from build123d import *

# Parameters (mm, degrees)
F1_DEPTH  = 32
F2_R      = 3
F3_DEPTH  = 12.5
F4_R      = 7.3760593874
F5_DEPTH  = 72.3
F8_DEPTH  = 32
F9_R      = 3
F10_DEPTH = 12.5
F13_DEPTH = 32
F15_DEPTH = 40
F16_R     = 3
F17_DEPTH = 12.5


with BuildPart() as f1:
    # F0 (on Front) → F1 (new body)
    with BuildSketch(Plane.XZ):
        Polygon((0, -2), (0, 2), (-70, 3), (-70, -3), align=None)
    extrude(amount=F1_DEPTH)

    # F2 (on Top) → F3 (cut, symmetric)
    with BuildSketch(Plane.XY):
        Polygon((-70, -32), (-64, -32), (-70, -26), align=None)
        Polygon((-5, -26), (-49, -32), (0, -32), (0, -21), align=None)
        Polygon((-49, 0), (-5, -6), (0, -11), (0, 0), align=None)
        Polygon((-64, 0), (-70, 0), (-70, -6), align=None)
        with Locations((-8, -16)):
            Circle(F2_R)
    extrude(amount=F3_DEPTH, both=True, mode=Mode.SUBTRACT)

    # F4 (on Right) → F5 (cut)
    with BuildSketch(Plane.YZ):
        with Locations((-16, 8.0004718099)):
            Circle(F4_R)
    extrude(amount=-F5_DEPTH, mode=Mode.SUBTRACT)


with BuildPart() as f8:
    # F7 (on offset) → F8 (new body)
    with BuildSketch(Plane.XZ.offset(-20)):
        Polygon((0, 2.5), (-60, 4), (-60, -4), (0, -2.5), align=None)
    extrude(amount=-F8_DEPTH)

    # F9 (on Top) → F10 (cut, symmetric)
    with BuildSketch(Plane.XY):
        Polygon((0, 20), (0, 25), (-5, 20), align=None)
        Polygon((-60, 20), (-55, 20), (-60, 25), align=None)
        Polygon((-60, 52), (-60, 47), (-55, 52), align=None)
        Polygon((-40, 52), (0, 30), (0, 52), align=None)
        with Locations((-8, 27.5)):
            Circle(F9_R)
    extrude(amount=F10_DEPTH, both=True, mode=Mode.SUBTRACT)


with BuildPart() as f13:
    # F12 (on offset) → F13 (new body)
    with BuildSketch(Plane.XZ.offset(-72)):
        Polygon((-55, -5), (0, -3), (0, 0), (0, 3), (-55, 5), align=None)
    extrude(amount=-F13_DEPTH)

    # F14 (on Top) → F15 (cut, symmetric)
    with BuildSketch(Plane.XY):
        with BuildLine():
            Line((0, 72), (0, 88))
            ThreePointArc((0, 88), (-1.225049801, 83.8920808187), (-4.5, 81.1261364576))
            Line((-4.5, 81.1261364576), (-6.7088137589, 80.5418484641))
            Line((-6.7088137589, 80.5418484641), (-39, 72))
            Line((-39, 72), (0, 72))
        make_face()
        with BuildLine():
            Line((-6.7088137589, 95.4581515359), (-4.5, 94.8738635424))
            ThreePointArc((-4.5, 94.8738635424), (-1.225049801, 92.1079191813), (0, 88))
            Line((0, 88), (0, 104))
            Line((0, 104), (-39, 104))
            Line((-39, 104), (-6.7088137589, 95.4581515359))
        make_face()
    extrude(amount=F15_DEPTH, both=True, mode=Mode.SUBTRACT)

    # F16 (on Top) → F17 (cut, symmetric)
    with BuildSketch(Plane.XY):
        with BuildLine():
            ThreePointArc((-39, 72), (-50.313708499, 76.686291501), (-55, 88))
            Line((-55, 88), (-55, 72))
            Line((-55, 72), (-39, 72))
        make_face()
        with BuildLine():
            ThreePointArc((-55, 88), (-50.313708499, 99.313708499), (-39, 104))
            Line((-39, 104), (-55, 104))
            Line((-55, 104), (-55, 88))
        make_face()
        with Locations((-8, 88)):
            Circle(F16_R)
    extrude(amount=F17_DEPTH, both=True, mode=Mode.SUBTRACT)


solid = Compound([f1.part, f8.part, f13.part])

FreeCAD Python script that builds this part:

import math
import FreeCAD as App
import Part
import Sketcher

V = App.Vector

doc = App.newDocument("Part")
body = doc.addObject("PartDesign::Body", "Body")

# Sketch on XZ plane
sketch1 = doc.addObject("Sketcher::SketchObject", "Sketch")
body.addObject(sketch1)
sketch1.AttachmentSupport = (doc.XZ_Plane, [""])
sketch1.MapMode = "FlatFace"
sketch1.addGeometry([
    Part.LineSegment(V(0, -2, 0), V(0, 2, 0)),
    Part.LineSegment(V(0, 2, 0), V(-70, 3, 0)),
    Part.LineSegment(V(-70, 3, 0), V(-70, -3, 0)),
    Part.LineSegment(V(-70, -3, 0), V(0, -2, 0)),
], False)
sketch1.addConstraint([
    Sketcher.Constraint("Coincident", 0, 2, 1, 1),
    Sketcher.Constraint("Coincident", 1, 2, 2, 1),
    Sketcher.Constraint("Coincident", 2, 2, 3, 1),
    Sketcher.Constraint("Coincident", 3, 2, 0, 1),
    Sketcher.Constraint("Vertical", 0),
    Sketcher.Constraint("Vertical", 2),
    Sketcher.Constraint("Symmetric", 0, 2, 3, 2, -1, 1),
    Sketcher.Constraint("Equal", 1, 3),
    Sketcher.Constraint("DistanceY", 0, 1, 0, 2, 4.0),
    Sketcher.Constraint("DistanceY", 2, 2, 2, 1, 6.0),
    Sketcher.Constraint("DistanceX", 1, 2, -1, 1, 70.0),
])
pad1 = doc.addObject("PartDesign::Pad", "Pad")
body.addObject(pad1)
pad1.Profile = sketch1
pad1.Length = 32

# Sketch on XY plane
sketch2 = doc.addObject("Sketcher::SketchObject", "Sketch001")
body.addObject(sketch2)
sketch2.AttachmentSupport = (doc.XY_Plane, [""])
sketch2.MapMode = "FlatFace"
sketch2.addGeometry([
    Part.LineSegment(V(-70, -32, 0), V(-64, -32, 0)),  # 0
    Part.LineSegment(V(-64, -32, 0), V(-70, -26, 0)),  # 1
    Part.LineSegment(V(-70, -26, 0), V(-70, -32, 0)),  # 2
    Part.LineSegment(V(-5, -26, 0), V(-49, -32, 0)),  # 3
    Part.LineSegment(V(-49, -32, 0), V(0, -32, 0)),  # 4
    Part.LineSegment(V(0, -32, 0), V(0, -21, 0)),  # 5
    Part.LineSegment(V(0, -21, 0), V(-5, -26, 0)),  # 6
    Part.LineSegment(V(-49, 0, 0), V(-5, -6, 0)),  # 7
    Part.LineSegment(V(-5, -6, 0), V(0, -11, 0)),  # 8
    Part.LineSegment(V(0, -11, 0), V(0, 0, 0)),  # 9
    Part.LineSegment(V(0, 0, 0), V(-49, 0, 0)),  # 10
    Part.LineSegment(V(-64, 0, 0), V(-70, 0, 0)),  # 11
    Part.LineSegment(V(-70, 0, 0), V(-70, -6, 0)),  # 12
    Part.LineSegment(V(-70, -6, 0), V(-64, 0, 0)),  # 13
    Part.Circle(V(-8, -16, 0), V(0, 0, 1), 3),  # 14
], False)
sketch2.addConstraint([
    Sketcher.Constraint("Coincident", 0, 2, 1, 1),
    Sketcher.Constraint("Coincident", 1, 2, 2, 1),
    Sketcher.Constraint("Coincident", 2, 2, 0, 1),
    Sketcher.Constraint("Coincident", 3, 2, 4, 1),
    Sketcher.Constraint("Coincident", 4, 2, 5, 1),
    Sketcher.Constraint("Coincident", 5, 2, 6, 1),
    Sketcher.Constraint("Coincident", 6, 2, 3, 1),
    Sketcher.Constraint("Coincident", 7, 2, 8, 1),
    Sketcher.Constraint("Coincident", 8, 2, 9, 1),
    Sketcher.Constraint("Coincident", 9, 2, 10, 1),
    Sketcher.Constraint("Coincident", 10, 2, 7, 1),
    Sketcher.Constraint("Coincident", 11, 2, 12, 1),
    Sketcher.Constraint("Coincident", 12, 2, 13, 1),
    Sketcher.Constraint("Coincident", 13, 2, 11, 1),
    Sketcher.Constraint("Horizontal", 0),
    Sketcher.Constraint("Vertical", 2),
    Sketcher.Constraint("Horizontal", 4),
    Sketcher.Constraint("Vertical", 5),
    Sketcher.Constraint("Vertical", 9),
    Sketcher.Constraint("Horizontal", 10),
    Sketcher.Constraint("Horizontal", 11),
    Sketcher.Constraint("Vertical", 12),
    Sketcher.Constraint("Coincident", 9, 2, -1, 1),
    Sketcher.Constraint("PointOnObject", 4, 2, -2),
    Sketcher.Constraint("PointOnObject", 11, 2, -1),
    Sketcher.Constraint("Perpendicular", 1, 6),
    Sketcher.Constraint("Perpendicular", 6, 8),
    Sketcher.Constraint("Perpendicular", 8, 13),
    Sketcher.Constraint("Horizontal", 2, 2, 3, 2),
    Sketcher.Constraint("Horizontal", 1, 2, 6, 2),
    Sketcher.Constraint("Horizontal", 7, 2, 12, 2),
    Sketcher.Constraint("Vertical", 6, 2, 7, 2),
    Sketcher.Constraint("Vertical", 3, 2, 10, 2),
    Sketcher.Constraint("Vertical", 2, 2, 11, 2),
    Sketcher.Constraint("Vertical", 0, 2, 13, 2),
    Sketcher.Constraint("Equal", 11, 2),
    Sketcher.Constraint("Diameter", 14, 6.0),
    Sketcher.Constraint("DistanceX", 0, 1, 0, 2, 6.0),
    Sketcher.Constraint("DistanceX", 4, 1, 4, 2, 49.0),
    Sketcher.Constraint("DistanceY", 5, 1, 5, 2, 11.0),
    Sketcher.Constraint("DistanceX", 14, 3, -1, 1, 8.0),
    Sketcher.Constraint("DistanceY", 14, 3, -1, 1, 16.0),
    Sketcher.Constraint("DistanceX", 0, 2, -1, 1, 64.0),
    Sketcher.Constraint("DistanceY", 0, 2, -1, 1, 32.0),
])
pocket1 = doc.addObject("PartDesign::Pocket", "Pocket")
body.addObject(pocket1)
pocket1.Profile = sketch2
pocket1.Length = 25
pocket1.Midplane = True

# Sketch on YZ plane
sketch3 = doc.addObject("Sketcher::SketchObject", "Sketch002")
body.addObject(sketch3)
sketch3.AttachmentSupport = (doc.YZ_Plane, [""])
sketch3.MapMode = "FlatFace"
sketch3.addGeometry(Part.Circle(V(-16, 8.000472, 0), V(0, 0, 1), 7.376059), False)
sketch3.addConstraint([
    Sketcher.Constraint("DistanceX", 0, 3, -1, 1, 16.0),
    Sketcher.Constraint("Diameter", 0, 14.752119),
    Sketcher.Constraint("DistanceY", -1, 1, 0, 3, 8.000472),
])
pocket2 = doc.addObject("PartDesign::Pocket", "Pocket001")
body.addObject(pocket2)
pocket2.Profile = sketch3
pocket2.Length = 72.3
body2 = doc.addObject("PartDesign::Body", "Body001")

# Sketch on XZ plane
sketch4 = doc.addObject("Sketcher::SketchObject", "Sketch003")
body2.addObject(sketch4)
sketch4.AttachmentSupport = (doc.getObject("XZ_Plane001"), [""])
sketch4.MapMode = "FlatFace"
sketch4.AttachmentOffset = App.Placement(V(0, 0, -20), App.Rotation())
sketch4.addGeometry([
    Part.LineSegment(V(0, 2.5, 0), V(-60, 4, 0)),
    Part.LineSegment(V(-60, 4, 0), V(-60, -4, 0)),
    Part.LineSegment(V(-60, -4, 0), V(0, -2.5, 0)),
    Part.LineSegment(V(0, -2.5, 0), V(0, 2.5, 0)),
], False)
sketch4.addConstraint([
    Sketcher.Constraint("Coincident", 0, 2, 1, 1),
    Sketcher.Constraint("Coincident", 1, 2, 2, 1),
    Sketcher.Constraint("Coincident", 2, 2, 3, 1),
    Sketcher.Constraint("Coincident", 3, 2, 0, 1),
    Sketcher.Constraint("Vertical", 1),
    Sketcher.Constraint("Vertical", 3),
    Sketcher.Constraint("Symmetric", 2, 2, 3, 2, -1, 1),
    Sketcher.Constraint("Equal", 0, 2),
    Sketcher.Constraint("DistanceY", 1, 2, 1, 1, 8.0),
    Sketcher.Constraint("DistanceY", 3, 1, 3, 2, 5.0),
    Sketcher.Constraint("DistanceX", 0, 2, -1, 1, 60.0),
])
pad2 = doc.addObject("PartDesign::Pad", "Pad001")
body2.addObject(pad2)
pad2.Profile = sketch4
pad2.Length = 32
pad2.Reversed = True

# Sketch on XY plane
sketch5 = doc.addObject("Sketcher::SketchObject", "Sketch004")
body2.addObject(sketch5)
sketch5.AttachmentSupport = (doc.getObject("XY_Plane001"), [""])
sketch5.MapMode = "FlatFace"
sketch5.addGeometry([
    Part.LineSegment(V(0, 20, 0), V(0, 25, 0)),  # 0
    Part.LineSegment(V(0, 25, 0), V(-5, 20, 0)),  # 1
    Part.LineSegment(V(-5, 20, 0), V(0, 20, 0)),  # 2
    Part.LineSegment(V(-60, 20, 0), V(-55, 20, 0)),  # 3
    Part.LineSegment(V(-55, 20, 0), V(-60, 25, 0)),  # 4
    Part.LineSegment(V(-60, 25, 0), V(-60, 20, 0)),  # 5
    Part.LineSegment(V(-60, 52, 0), V(-60, 47, 0)),  # 6
    Part.LineSegment(V(-60, 47, 0), V(-55, 52, 0)),  # 7
    Part.LineSegment(V(-55, 52, 0), V(-60, 52, 0)),  # 8
    Part.LineSegment(V(-40, 52, 0), V(0, 30, 0)),  # 9
    Part.LineSegment(V(0, 30, 0), V(0, 52, 0)),  # 10
    Part.LineSegment(V(0, 52, 0), V(-40, 52, 0)),  # 11
    Part.Circle(V(-8, 27.5, 0), V(0, 0, 1), 3),  # 12
], False)
sketch5.addConstraint([
    Sketcher.Constraint("Coincident", 0, 2, 1, 1),
    Sketcher.Constraint("Coincident", 1, 2, 2, 1),
    Sketcher.Constraint("Coincident", 2, 2, 0, 1),
    Sketcher.Constraint("Coincident", 3, 2, 4, 1),
    Sketcher.Constraint("Coincident", 4, 2, 5, 1),
    Sketcher.Constraint("Coincident", 5, 2, 3, 1),
    Sketcher.Constraint("Coincident", 6, 2, 7, 1),
    Sketcher.Constraint("Coincident", 7, 2, 8, 1),
    Sketcher.Constraint("Coincident", 8, 2, 6, 1),
    Sketcher.Constraint("Coincident", 9, 2, 10, 1),
    Sketcher.Constraint("Coincident", 10, 2, 11, 1),
    Sketcher.Constraint("Coincident", 11, 2, 9, 1),
    Sketcher.Constraint("Vertical", 0),
    Sketcher.Constraint("Horizontal", 2),
    Sketcher.Constraint("Horizontal", 3),
    Sketcher.Constraint("Vertical", 5),
    Sketcher.Constraint("Vertical", 6),
    Sketcher.Constraint("Horizontal", 8),
    Sketcher.Constraint("Vertical", 10),
    Sketcher.Constraint("Horizontal", 11),
    Sketcher.Constraint("PointOnObject", 0, 2, -2),
    Sketcher.Constraint("PointOnObject", 9, 2, -2),
    Sketcher.Constraint("Perpendicular", 1, 4),
    Sketcher.Constraint("Perpendicular", 4, 7),
    Sketcher.Constraint("Horizontal", 2, 2, 3, 2),
    Sketcher.Constraint("Horizontal", 0, 2, 4, 2),
    Sketcher.Constraint("Horizontal", 8, 2, 10, 2),
    Sketcher.Constraint("Vertical", 5, 2, 6, 2),
    Sketcher.Constraint("Vertical", 3, 2, 7, 2),
    Sketcher.Constraint("Equal", 2, 3),
    Sketcher.Constraint("Diameter", 12, 6.0),
    Sketcher.Constraint("DistanceX", 2, 1, 2, 2, 5.0),
    Sketcher.Constraint("DistanceX", 11, 2, 11, 1, 40.0),
    Sketcher.Constraint("DistanceY", 10, 1, 10, 2, 22.0),
    Sketcher.Constraint("DistanceX", 12, 3, -1, 1, 8.0),
    Sketcher.Constraint("DistanceY", -1, 1, 0, 2, 25.0),
    Sketcher.Constraint("DistanceX", 3, 2, -1, 1, 55.0),
    Sketcher.Constraint("DistanceY", -1, 1, 6, 2, 47.0),
    Sketcher.Constraint("DistanceY", -1, 1, 12, 3, 27.5),
])
pocket3 = doc.addObject("PartDesign::Pocket", "Pocket002")
body2.addObject(pocket3)
pocket3.Profile = sketch5
pocket3.Length = 25
pocket3.Midplane = True
body3 = doc.addObject("PartDesign::Body", "Body002")

# Sketch on XZ plane
sketch6 = doc.addObject("Sketcher::SketchObject", "Sketch005")
body3.addObject(sketch6)
sketch6.AttachmentSupport = (doc.getObject("XZ_Plane002"), [""])
sketch6.MapMode = "FlatFace"
sketch6.AttachmentOffset = App.Placement(V(0, 0, -72), App.Rotation())
sketch6.addGeometry([
    Part.LineSegment(V(-55, -5, 0), V(0, -3, 0)),
    Part.LineSegment(V(0, -3, 0), V(0, 3, 0)),
    Part.LineSegment(V(0, 3, 0), V(-55, 5, 0)),
    Part.LineSegment(V(-55, 5, 0), V(-55, -5, 0)),
], False)
sketch6.addConstraint([
    Sketcher.Constraint("Coincident", 0, 2, 1, 1),
    Sketcher.Constraint("Coincident", 1, 2, 2, 1),
    Sketcher.Constraint("Coincident", 2, 2, 3, 1),
    Sketcher.Constraint("Coincident", 3, 2, 0, 1),
    Sketcher.Constraint("Vertical", 1),
    Sketcher.Constraint("Vertical", 3),
    Sketcher.Constraint("Symmetric", 0, 2, 1, 2, -1, 1),
    Sketcher.Constraint("Equal", 0, 2),
    Sketcher.Constraint("DistanceY", 1, 1, 1, 2, 6.0),
    Sketcher.Constraint("DistanceY", 3, 2, 3, 1, 10.0),
    Sketcher.Constraint("DistanceX", 2, 2, -1, 1, 55.0),
])
pad3 = doc.addObject("PartDesign::Pad", "Pad002")
body3.addObject(pad3)
pad3.Profile = sketch6
pad3.Length = 32
pad3.Reversed = True

# Sketch on XY plane
sketch7 = doc.addObject("Sketcher::SketchObject", "Sketch006")
body3.addObject(sketch7)
sketch7.AttachmentSupport = (doc.getObject("XY_Plane002"), [""])
sketch7.MapMode = "FlatFace"
sketch7.addGeometry([
    Part.LineSegment(V(0, 72, 0), V(0, 88, 0)),  # 0
    Part.ArcOfCircle(Part.Circle(V(-7.5, 88, 0), V(0, 0, 1), 7.5), math.radians(-66.421822), math.radians(0)),  # 1
    Part.LineSegment(V(-4.5, 81.126136, 0), V(-6.708814, 80.541848, 0)),  # 2
    Part.LineSegment(V(-6.708814, 80.541848, 0), V(-39, 72, 0)),  # 3
    Part.LineSegment(V(-39, 72, 0), V(0, 72, 0)),  # 4
    Part.LineSegment(V(-6.708814, 95.458152, 0), V(-4.5, 94.873864, 0)),  # 5
    Part.ArcOfCircle(Part.Circle(V(-7.5, 88, 0), V(0, 0, 1), 7.5), math.radians(0), math.radians(66.421822)),  # 6
    Part.LineSegment(V(0, 88, 0), V(0, 104, 0)),  # 7
    Part.LineSegment(V(0, 104, 0), V(-39, 104, 0)),  # 8
    Part.LineSegment(V(-39, 104, 0), V(-6.708814, 95.458152, 0)),  # 9
], False)
sketch7.addConstraint([
    Sketcher.Constraint("Tangent", 0, 2, 1, 2),
    Sketcher.Constraint("Coincident", 1, 1, 2, 1),
    Sketcher.Constraint("Coincident", 2, 2, 3, 1),
    Sketcher.Constraint("Coincident", 3, 2, 4, 1),
    Sketcher.Constraint("Coincident", 4, 2, 0, 1),
    Sketcher.Constraint("Coincident", 5, 2, 6, 2),
    Sketcher.Constraint("Tangent", 6, 1, 7, 1),
    Sketcher.Constraint("Coincident", 7, 2, 8, 1),
    Sketcher.Constraint("Coincident", 8, 2, 9, 1),
    Sketcher.Constraint("Coincident", 9, 2, 5, 1),
    Sketcher.Constraint("Vertical", 0),
    Sketcher.Constraint("Horizontal", 4),
    Sketcher.Constraint("Vertical", 7),
    Sketcher.Constraint("Horizontal", 8),
    Sketcher.Constraint("Coincident", 6, 3, 1, 3),
    Sketcher.Constraint("Equal", 1, 6),
    Sketcher.Constraint("PointOnObject", 0, 2, -2),
    Sketcher.Constraint("Parallel", 2, 3),
    Sketcher.Constraint("Parallel", 5, 9),
    Sketcher.Constraint("Vertical", 1, 1, 5, 2),
    Sketcher.Constraint("Vertical", 3, 2, 8, 2),
    Sketcher.Constraint("Vertical", 2, 2, 9, 2),
    Sketcher.Constraint("Equal", 0, 7),
    Sketcher.Constraint("Radius", 1, 7.5),
    Sketcher.Constraint("DistanceX", 4, 1, 4, 2, 39.0),
    Sketcher.Constraint("DistanceY", 0, 1, 0, 2, 16.0),
    Sketcher.Constraint("DistanceY", -1, 1, 1, 3, 88.0),
    Sketcher.Constraint("DistanceX", 1, 3, 1, 1, 3.0),
    Sketcher.Constraint("DistanceY", -1, 1, 2, 2, 80.541848),
])
pocket4 = doc.addObject("PartDesign::Pocket", "Pocket003")
body3.addObject(pocket4)
pocket4.Profile = sketch7
pocket4.Length = 80
pocket4.Midplane = True

# Sketch on XY plane
sketch8 = doc.addObject("Sketcher::SketchObject", "Sketch007")
body3.addObject(sketch8)
sketch8.AttachmentSupport = (doc.getObject("XY_Plane002"), [""])
sketch8.MapMode = "FlatFace"
sketch8.addGeometry([
    Part.ArcOfCircle(Part.Circle(V(-39, 88, 0), V(0, 0, 1), 16), math.radians(180), math.radians(270)),  # 0
    Part.LineSegment(V(-55, 88, 0), V(-55, 72, 0)),  # 1
    Part.LineSegment(V(-55, 72, 0), V(-39, 72, 0)),  # 2
    Part.ArcOfCircle(Part.Circle(V(-39, 88, 0), V(0, 0, 1), 16), math.radians(90), math.radians(180)),  # 3
    Part.LineSegment(V(-39, 104, 0), V(-55, 104, 0)),  # 4
    Part.LineSegment(V(-55, 104, 0), V(-55, 88, 0)),  # 5
    Part.Circle(V(-8, 88, 0), V(0, 0, 1), 3),  # 6
], False)
sketch8.addConstraint([
    Sketcher.Constraint("Tangent", 0, 1, 1, 1),
    Sketcher.Constraint("Coincident", 1, 2, 2, 1),
    Sketcher.Constraint("Tangent", 2, 2, 0, 2),
    Sketcher.Constraint("Tangent", 3, 1, 4, 1),
    Sketcher.Constraint("Coincident", 4, 2, 5, 1),
    Sketcher.Constraint("Tangent", 5, 2, 3, 2),
    Sketcher.Constraint("Vertical", 1),
    Sketcher.Constraint("Horizontal", 2),
    Sketcher.Constraint("Horizontal", 4),
    Sketcher.Constraint("Vertical", 5),
    Sketcher.Constraint("Coincident", 3, 3, 0, 3),
    Sketcher.Constraint("Equal", 0, 3),
    Sketcher.Constraint("Horizontal", 3, 3, 6, 3),
    Sketcher.Constraint("Diameter", 6, 6.0),
    Sketcher.Constraint("Radius", 0, 16.0),
    Sketcher.Constraint("DistanceX", 0, 3, -1, 1, 39.0),
    Sketcher.Constraint("DistanceY", -1, 1, 0, 3, 88.0),
    Sketcher.Constraint("DistanceX", 6, 3, -1, 1, 8.0),
])
pocket5 = doc.addObject("PartDesign::Pocket", "Pocket004")
body3.addObject(pocket5)
pocket5.Profile = sketch8
pocket5.Length = 25
pocket5.Midplane = True

doc.recompute()
